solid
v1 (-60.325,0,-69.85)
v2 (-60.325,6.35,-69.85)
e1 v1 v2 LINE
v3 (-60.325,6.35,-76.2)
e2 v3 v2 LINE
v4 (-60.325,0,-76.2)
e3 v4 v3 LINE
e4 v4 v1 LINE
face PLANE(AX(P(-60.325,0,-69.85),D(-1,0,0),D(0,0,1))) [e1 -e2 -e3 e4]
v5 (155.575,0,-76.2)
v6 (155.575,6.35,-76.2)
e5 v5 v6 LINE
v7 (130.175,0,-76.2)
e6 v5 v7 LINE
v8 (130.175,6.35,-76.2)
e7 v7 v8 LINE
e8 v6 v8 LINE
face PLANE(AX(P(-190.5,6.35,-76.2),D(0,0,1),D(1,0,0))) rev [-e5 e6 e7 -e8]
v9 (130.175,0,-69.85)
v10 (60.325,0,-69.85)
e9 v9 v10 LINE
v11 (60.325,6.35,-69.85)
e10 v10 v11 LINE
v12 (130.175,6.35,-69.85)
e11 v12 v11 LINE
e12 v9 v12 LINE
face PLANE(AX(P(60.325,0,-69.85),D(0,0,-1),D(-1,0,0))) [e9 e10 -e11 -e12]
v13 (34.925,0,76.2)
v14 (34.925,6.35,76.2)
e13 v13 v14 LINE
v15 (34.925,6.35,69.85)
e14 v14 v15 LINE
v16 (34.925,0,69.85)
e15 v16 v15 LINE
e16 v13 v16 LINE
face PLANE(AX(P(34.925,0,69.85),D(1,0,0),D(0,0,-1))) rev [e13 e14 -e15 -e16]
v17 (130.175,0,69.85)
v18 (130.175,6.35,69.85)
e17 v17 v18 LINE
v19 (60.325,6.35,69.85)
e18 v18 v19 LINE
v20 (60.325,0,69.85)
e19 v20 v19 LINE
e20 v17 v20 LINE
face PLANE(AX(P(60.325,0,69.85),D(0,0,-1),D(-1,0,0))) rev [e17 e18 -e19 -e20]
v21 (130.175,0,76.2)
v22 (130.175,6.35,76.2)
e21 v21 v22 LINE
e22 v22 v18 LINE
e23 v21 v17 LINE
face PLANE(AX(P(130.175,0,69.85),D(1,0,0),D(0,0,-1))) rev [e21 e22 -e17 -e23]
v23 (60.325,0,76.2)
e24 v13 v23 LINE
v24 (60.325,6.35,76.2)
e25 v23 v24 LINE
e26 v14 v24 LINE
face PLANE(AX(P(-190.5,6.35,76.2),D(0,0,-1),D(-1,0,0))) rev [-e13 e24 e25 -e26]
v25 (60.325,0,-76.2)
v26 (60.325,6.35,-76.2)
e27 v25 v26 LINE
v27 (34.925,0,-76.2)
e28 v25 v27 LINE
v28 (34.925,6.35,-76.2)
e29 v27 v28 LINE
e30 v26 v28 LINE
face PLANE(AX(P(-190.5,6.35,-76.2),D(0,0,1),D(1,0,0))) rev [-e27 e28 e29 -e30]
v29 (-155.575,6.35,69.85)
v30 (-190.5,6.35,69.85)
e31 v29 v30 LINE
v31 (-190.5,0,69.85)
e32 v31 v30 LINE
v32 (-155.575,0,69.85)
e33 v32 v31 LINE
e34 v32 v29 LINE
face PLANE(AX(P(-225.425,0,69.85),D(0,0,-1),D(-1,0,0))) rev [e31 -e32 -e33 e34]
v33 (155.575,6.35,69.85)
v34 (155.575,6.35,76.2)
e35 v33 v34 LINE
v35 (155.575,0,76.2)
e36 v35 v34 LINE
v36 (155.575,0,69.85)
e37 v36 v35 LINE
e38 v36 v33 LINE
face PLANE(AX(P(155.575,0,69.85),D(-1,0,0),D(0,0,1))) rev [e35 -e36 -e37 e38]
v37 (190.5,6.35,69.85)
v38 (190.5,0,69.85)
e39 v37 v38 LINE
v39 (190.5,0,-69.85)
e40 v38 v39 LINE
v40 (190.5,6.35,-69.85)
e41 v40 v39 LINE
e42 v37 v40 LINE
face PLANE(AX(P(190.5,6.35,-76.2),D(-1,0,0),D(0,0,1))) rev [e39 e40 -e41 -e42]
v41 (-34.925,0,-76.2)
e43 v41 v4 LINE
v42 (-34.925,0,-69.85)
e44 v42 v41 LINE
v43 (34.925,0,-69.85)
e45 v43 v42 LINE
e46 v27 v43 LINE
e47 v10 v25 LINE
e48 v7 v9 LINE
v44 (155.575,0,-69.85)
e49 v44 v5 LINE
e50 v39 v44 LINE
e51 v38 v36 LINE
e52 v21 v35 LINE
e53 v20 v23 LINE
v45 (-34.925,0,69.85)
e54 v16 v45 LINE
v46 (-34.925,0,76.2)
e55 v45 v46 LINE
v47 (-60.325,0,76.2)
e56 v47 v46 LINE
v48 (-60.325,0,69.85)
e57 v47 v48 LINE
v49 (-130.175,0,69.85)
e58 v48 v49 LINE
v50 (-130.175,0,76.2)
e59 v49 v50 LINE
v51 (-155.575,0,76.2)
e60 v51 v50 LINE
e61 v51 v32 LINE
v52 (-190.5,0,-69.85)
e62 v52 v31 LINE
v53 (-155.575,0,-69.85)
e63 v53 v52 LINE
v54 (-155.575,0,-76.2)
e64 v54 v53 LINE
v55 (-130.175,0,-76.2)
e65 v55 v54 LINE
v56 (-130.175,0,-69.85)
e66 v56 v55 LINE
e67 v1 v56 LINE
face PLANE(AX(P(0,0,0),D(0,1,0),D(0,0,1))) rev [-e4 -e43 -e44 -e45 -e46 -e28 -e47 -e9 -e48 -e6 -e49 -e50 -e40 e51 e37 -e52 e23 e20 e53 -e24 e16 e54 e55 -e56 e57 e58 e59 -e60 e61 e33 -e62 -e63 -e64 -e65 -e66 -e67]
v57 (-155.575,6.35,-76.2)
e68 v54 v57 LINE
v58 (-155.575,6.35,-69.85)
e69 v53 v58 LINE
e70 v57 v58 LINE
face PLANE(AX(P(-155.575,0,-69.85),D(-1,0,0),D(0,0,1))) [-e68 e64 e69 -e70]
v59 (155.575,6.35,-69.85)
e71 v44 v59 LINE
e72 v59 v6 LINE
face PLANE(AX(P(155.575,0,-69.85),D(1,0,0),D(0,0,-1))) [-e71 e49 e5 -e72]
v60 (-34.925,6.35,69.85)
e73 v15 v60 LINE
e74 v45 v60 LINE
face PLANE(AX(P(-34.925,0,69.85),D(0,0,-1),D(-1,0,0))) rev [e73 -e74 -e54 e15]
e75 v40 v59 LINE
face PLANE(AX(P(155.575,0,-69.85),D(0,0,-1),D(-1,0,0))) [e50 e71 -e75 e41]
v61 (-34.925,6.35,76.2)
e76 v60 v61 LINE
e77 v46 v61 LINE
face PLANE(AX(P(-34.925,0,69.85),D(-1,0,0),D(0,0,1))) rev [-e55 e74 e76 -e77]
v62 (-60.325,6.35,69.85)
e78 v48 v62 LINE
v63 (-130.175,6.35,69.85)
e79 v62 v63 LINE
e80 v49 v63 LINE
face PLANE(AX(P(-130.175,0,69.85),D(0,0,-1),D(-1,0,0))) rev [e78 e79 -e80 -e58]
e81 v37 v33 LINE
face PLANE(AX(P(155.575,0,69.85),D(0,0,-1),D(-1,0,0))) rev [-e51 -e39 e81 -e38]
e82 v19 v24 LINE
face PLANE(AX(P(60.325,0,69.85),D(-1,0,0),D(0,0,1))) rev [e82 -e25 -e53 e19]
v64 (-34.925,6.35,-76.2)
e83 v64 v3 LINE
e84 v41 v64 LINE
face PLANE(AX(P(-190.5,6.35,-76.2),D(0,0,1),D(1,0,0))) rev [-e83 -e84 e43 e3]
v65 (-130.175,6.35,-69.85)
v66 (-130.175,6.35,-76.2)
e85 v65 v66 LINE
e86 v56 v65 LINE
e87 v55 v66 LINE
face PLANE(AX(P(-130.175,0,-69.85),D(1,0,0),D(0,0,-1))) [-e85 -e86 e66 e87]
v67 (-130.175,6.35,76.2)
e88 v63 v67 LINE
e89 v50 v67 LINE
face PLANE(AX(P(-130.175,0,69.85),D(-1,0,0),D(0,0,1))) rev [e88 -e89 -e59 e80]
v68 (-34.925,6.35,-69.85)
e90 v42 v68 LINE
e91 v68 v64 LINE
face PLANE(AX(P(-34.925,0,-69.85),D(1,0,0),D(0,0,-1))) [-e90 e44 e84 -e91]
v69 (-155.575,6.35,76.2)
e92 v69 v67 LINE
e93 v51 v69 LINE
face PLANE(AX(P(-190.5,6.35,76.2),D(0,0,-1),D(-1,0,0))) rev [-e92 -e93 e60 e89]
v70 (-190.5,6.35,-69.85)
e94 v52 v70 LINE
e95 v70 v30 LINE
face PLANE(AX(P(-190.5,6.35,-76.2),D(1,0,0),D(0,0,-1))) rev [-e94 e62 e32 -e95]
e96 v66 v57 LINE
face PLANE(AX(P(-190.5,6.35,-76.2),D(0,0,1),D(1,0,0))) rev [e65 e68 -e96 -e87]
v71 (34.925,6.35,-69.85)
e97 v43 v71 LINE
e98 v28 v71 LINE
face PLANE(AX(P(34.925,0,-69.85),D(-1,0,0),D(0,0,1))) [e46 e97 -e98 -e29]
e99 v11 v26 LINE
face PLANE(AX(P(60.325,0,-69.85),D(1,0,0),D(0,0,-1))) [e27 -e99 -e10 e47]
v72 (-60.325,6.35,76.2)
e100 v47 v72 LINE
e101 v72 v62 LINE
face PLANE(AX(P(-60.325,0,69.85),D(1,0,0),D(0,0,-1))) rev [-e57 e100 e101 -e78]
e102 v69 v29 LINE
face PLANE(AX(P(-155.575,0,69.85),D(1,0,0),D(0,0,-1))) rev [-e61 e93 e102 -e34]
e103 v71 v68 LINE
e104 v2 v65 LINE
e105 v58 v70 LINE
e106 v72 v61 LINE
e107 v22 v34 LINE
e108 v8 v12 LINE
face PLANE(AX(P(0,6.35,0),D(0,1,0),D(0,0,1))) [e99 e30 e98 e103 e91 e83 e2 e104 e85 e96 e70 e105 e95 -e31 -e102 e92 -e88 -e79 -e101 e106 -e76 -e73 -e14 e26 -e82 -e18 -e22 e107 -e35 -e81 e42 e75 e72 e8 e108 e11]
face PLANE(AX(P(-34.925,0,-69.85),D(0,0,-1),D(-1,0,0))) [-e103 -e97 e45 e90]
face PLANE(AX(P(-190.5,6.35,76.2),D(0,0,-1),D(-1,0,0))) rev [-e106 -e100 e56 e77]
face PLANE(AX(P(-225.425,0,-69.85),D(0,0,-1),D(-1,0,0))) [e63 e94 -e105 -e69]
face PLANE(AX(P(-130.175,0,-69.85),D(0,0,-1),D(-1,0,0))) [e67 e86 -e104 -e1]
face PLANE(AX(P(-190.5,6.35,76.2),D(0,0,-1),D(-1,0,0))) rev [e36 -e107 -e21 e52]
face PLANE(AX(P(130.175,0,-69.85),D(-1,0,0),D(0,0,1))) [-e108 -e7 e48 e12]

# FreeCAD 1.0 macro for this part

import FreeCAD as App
import Part
import Sketcher
from FreeCAD import Vector
Q = App.Units.Quantity


def add_polygon(sketch, points):
    """Adds a closed chain of lines whose ends are joined by coincident constraints."""
    first, n = sketch.GeometryCount, len(points)
    for a, b in zip(points, points[1:] + points[:1]):
        sketch.addGeometry(Part.LineSegment(App.Vector(*a, 0), App.Vector(*b, 0)), False)
    for i in range(n):
        sketch.addConstraint(Sketcher.Constraint("Coincident", first + i, 2, first + (i + 1) % n, 1))

doc = App.newDocument("Part")
body = doc.addObject("PartDesign::Body", "Body")

# Sketch on XZ plane
sketch1 = body.newObject("Sketcher::SketchObject", "Sketch")
sketch1.AttachmentSupport = (doc.getObject("XZ_Plane"), [""])
sketch1.MapMode = "FlatFace"
add_polygon(sketch1, [(-190, -76), (-190, 76), (190, 76), (190, -76)])  # lines 0-3
sketch1.addConstraint([
    Sketcher.Constraint("Vertical", 0),
    Sketcher.Constraint("Horizontal", 1),
    Sketcher.Constraint("Vertical", 2),
    Sketcher.Constraint("Horizontal", 3),
    Sketcher.Constraint("Symmetric", 0, 2, 2, 2, -1, 1),
    Sketcher.Constraint("DistanceX", 1, 1, 1, 2, Q("15 in")),
    Sketcher.Constraint("DistanceY", 0, 1, 0, 2, Q("6 in")),
])
pad1 = body.newObject("PartDesign::Pad", "Pad")
pad1.Profile = sketch1
pad1.Length = Q("0.25 in")
pad1.Reversed = True

# Sketch on XZ plane
sketch2 = body.newObject("Sketcher::SketchObject", "Sketch001")
sketch2.AttachmentSupport = (doc.getObject("XZ_Plane"), [""])
sketch2.MapMode = "FlatFace"
sketch2.AttachmentOffset = App.Placement(Vector(0, 0, -0.25 * 25.4), App.Rotation())
add_polygon(sketch2, [(-35, 70), (-35, 76), (35, 76), (35, 70)])  # lines 0-3
sketch2.addConstraint([
    Sketcher.Constraint("Vertical", 0),
    Sketcher.Constraint("Horizontal", 1),
    Sketcher.Constraint("Vertical", 2),
    Sketcher.Constraint("Horizontal", 3),
    Sketcher.Constraint("DistanceY", -1, 1, 0, 2, Q("3 in")),
    Sketcher.Constraint("DistanceX", 1, 1, 1, 2, Q("2.75 in")),
    Sketcher.Constraint("DistanceY", 0, 1, 0, 2, Q("0.25 in")),
    Sketcher.Constraint("DistanceX", 0, 2, -1, 1, Q("1.375 in")),
])
pocket1 = body.newObject("PartDesign::Pocket", "Pocket")
pocket1.Profile = sketch2
pocket1.Type = "ThroughAll"
pocket1.Reversed = True
doc.recompute()

linearpattern = body.newObject("PartDesign::LinearPattern", "LinearPattern")
linearpattern.Originals = [pocket1]
linearpattern.Direction = (doc.getObject("X_Axis"), [""])
linearpattern.Mode = "offset"
linearpattern.Offset = Q("3.75 in")
linearpattern.Occurrences = 3
linearpattern.Reversed = True
body.Tip = linearpattern
doc.recompute()

linearpattern2 = body.newObject("PartDesign::LinearPattern", "LinearPattern001")
linearpattern2.Originals = [pocket1]
linearpattern2.Direction = (doc.getObject("X_Axis"), [""])
linearpattern2.Mode = "offset"
linearpattern2.Offset = Q("3.75 in")
linearpattern2.Occurrences = 3
body.Tip = linearpattern2
doc.recompute()

mirrored = body.newObject("PartDesign::Mirrored", "Mirrored")
mirrored.Originals = [pocket1]
mirrored.MirrorPlane = (doc.getObject("XY_Plane"), [""])
body.Tip = mirrored

# Sketch on XZ plane
sketch3 = body.newObject("Sketcher::SketchObject", "Sketch002")
sketch3.AttachmentSupport = (doc.getObject("XZ_Plane"), [""])
sketch3.MapMode = "FlatFace"
sketch3.AttachmentOffset = App.Placement(Vector(0, 0, -0.25 * 25.4), App.Rotation())
add_polygon(sketch3, [(-130, -76), (-130, -70), (-60, -70), (-60, -76)])  # lines 0-3
sketch3.addConstraint([
    Sketcher.Constraint("Vertical", 0),
    Sketcher.Constraint("Horizontal", 1),
    Sketcher.Constraint("Vertical", 2),
    Sketcher.Constraint("Horizontal", 3),
    Sketcher.Constraint("DistanceY", 2, 2, -1, 1, Q("3 in")),
    Sketcher.Constraint("DistanceX", 1, 1, 1, 2, Q("2.75 in")),
    Sketcher.Constraint("DistanceY", 0, 1, 0, 2, Q("0.25 in")),
    Sketcher.Constraint("DistanceX", 0, 2, -1, 1, Q("5.125 in")),
])
pocket2 = body.newObject("PartDesign::Pocket", "Pocket001")
pocket2.Profile = sketch3
pocket2.Type = "ThroughAll"
pocket2.Reversed = True

# Sketch on XZ plane
sketch4 = body.newObject("Sketcher::SketchObject", "Sketch003")
sketch4.AttachmentSupport = (doc.getObject("XZ_Plane"), [""])
sketch4.MapMode = "FlatFace"
sketch4.AttachmentOffset = App.Placement(Vector(0, 0, -0.25 * 25.4), App.Rotation())
add_polygon(sketch4, [(-225, -76), (-225, -70), (-156, -70), (-156, -76)])  # lines 0-3
sketch4.addConstraint([
    Sketcher.Constraint("Vertical", 0),
    Sketcher.Constraint("Horizontal", 1),
    Sketcher.Constraint("Vertical", 2),
    Sketcher.Constraint("Horizontal", 3),
    Sketcher.Constraint("DistanceY", 2, 2, -1, 1, Q("3 in")),
    Sketcher.Constraint("DistanceX", 1, 1, 1, 2, Q("2.75 in")),
    Sketcher.Constraint("DistanceY", 0, 1, 0, 2, Q("0.25 in")),
    Sketcher.Constraint("DistanceX", 0, 2, -1, 1, Q("8.875 in")),
])
pocket3 = body.newObject("PartDesign::Pocket", "Pocket002")
pocket3.Profile = sketch4
pocket3.Type = "ThroughAll"
pocket3.Reversed = True

# Sketch on XZ plane
sketch5 = body.newObject("Sketcher::SketchObject", "Sketch004")
sketch5.AttachmentSupport = (doc.getObject("XZ_Plane"), [""])
sketch5.MapMode = "FlatFace"
sketch5.AttachmentOffset = App.Placement(Vector(0, 0, -0.25 * 25.4), App.Rotation())
add_polygon(sketch5, [(60, -76), (60, -70), (130, -70), (130, -76)])  # lines 0-3
sketch5.addConstraint([
    Sketcher.Constraint("Vertical", 0),
    Sketcher.Constraint("Horizontal", 1),
    Sketcher.Constraint("Vertical", 2),
    Sketcher.Constraint("Horizontal", 3),
    Sketcher.Constraint("DistanceY", 2, 2, -1, 1, Q("3 in")),
    Sketcher.Constraint("DistanceX", 1, 1, 1, 2, Q("2.75 in")),
    Sketcher.Constraint("DistanceY", 0, 1, 0, 2, Q("0.25 in")),
    Sketcher.Constraint("DistanceX", -1, 1, 0, 2, Q("2.375 in")),
])
pocket4 = body.newObject("PartDesign::Pocket", "Pocket003")
pocket4.Profile = sketch5
pocket4.Type = "ThroughAll"
pocket4.Reversed = True

# Sketch on XZ plane
sketch6 = body.newObject("Sketcher::SketchObject", "Sketch005")
sketch6.AttachmentSupport = (doc.getObject("XZ_Plane"), [""])
sketch6.MapMode = "FlatFace"
sketch6.AttachmentOffset = App.Placement(Vector(0, 0, -0.25 * 25.4), App.Rotation())
add_polygon(sketch6, [(156, -76), (156, -70), (225, -70), (225, -76)])  # lines 0-3
sketch6.addConstraint([
    Sketcher.Constraint("Vertical", 0),
    Sketcher.Constraint("Horizontal", 1),
    Sketcher.Constraint("Vertical", 2),
    Sketcher.Constraint("Horizontal", 3),
    Sketcher.Constraint("DistanceY", 2, 2, -1, 1, Q("3 in")),
    Sketcher.Constraint("DistanceX", 1, 1, 1, 2, Q("2.75 in")),
    Sketcher.Constraint("DistanceY", 0, 1, 0, 2, Q("0.25 in")),
    Sketcher.Constraint("DistanceX", -1, 1, 0, 2, Q("6.125 in")),
])
pocket5 = body.newObject("PartDesign::Pocket", "Pocket004")
pocket5.Profile = sketch6
pocket5.Type = "ThroughAll"
pocket5.Reversed = True

doc.recompute()
